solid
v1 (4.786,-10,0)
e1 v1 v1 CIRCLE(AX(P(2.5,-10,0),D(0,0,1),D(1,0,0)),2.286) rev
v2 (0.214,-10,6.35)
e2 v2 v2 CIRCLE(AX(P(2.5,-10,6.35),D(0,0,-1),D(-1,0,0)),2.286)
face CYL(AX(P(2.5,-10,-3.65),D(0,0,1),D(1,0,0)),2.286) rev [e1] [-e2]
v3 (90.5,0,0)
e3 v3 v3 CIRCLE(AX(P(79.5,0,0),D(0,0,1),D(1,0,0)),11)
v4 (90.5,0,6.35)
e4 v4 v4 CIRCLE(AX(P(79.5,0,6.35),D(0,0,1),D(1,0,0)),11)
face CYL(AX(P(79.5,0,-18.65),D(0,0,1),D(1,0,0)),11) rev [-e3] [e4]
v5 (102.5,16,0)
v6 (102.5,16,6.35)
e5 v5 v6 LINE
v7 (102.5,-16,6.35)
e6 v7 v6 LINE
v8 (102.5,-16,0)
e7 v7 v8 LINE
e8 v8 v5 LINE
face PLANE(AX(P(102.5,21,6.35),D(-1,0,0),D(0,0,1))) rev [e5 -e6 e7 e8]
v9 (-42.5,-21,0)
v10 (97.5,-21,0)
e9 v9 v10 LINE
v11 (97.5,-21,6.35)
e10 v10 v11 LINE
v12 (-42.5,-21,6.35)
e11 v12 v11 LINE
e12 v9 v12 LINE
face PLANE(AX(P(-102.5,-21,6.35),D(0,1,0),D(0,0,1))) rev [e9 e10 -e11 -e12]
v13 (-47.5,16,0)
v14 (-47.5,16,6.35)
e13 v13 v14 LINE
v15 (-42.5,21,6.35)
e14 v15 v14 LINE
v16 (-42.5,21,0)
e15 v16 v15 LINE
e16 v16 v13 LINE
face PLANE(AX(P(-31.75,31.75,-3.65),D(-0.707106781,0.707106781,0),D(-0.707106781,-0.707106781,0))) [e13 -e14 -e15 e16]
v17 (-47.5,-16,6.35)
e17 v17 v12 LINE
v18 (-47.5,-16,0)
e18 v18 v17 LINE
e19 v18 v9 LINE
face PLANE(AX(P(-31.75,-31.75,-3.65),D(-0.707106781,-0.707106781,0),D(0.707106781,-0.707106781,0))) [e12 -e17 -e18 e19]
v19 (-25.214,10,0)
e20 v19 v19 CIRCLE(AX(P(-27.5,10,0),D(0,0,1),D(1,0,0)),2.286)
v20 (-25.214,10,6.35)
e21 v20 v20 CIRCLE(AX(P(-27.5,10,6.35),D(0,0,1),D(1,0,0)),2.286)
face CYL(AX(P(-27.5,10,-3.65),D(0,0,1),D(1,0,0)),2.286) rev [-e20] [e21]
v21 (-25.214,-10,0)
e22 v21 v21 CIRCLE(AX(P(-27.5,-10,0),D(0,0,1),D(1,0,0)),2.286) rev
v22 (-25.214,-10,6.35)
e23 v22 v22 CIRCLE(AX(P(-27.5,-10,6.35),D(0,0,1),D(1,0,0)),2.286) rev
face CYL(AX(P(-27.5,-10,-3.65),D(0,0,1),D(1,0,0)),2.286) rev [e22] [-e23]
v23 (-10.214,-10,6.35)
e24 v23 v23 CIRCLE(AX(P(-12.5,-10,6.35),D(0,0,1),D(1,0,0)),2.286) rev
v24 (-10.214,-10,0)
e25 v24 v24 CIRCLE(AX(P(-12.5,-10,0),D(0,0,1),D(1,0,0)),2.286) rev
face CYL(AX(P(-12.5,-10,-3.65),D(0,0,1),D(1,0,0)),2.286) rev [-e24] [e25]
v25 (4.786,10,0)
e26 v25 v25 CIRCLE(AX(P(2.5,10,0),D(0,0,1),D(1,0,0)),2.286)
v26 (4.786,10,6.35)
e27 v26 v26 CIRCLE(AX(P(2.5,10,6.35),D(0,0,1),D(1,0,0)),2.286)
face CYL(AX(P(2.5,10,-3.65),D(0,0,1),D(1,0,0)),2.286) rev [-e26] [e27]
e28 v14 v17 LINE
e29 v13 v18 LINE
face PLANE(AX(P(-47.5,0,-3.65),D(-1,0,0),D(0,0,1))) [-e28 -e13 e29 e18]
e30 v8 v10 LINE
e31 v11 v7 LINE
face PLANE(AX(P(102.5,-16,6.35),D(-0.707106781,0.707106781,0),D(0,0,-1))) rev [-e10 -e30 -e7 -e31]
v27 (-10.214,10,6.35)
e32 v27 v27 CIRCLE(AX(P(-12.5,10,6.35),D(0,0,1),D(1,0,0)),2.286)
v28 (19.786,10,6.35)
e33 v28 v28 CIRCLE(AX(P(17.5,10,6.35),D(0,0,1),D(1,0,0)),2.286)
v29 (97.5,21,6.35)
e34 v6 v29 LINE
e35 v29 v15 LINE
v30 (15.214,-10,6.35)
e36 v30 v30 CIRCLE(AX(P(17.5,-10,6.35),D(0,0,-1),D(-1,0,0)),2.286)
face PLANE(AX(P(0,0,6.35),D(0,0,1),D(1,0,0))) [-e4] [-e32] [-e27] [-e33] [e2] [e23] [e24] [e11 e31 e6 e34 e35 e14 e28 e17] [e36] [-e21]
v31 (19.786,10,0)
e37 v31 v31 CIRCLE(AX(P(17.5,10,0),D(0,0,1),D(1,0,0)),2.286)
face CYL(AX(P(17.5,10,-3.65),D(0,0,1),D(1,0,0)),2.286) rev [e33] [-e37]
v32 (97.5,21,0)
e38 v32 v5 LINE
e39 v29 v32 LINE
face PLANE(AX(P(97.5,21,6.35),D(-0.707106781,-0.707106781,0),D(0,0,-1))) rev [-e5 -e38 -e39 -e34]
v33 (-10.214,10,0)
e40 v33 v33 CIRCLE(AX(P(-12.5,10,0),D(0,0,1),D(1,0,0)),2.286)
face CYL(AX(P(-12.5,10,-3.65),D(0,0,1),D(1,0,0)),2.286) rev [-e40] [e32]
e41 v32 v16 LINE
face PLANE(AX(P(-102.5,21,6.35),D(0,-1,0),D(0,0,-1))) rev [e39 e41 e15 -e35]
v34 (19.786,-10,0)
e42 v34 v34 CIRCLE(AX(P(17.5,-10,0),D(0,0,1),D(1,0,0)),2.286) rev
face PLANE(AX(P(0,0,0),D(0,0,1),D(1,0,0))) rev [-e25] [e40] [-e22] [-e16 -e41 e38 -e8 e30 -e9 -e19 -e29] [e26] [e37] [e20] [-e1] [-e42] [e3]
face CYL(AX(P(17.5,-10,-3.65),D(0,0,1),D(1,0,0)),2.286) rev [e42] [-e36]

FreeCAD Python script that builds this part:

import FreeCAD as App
import Part
import Sketcher
Q = App.Units.Quantity


def edges_at(feature, points):
    """Names of the edges that pass closest to the given points."""
    edges = feature.Shape.Edges
    near = lambda p: min(range(len(edges)), key=lambda i: edges[i].distToShape(Part.Vertex(*p))[0])
    return sorted({f"Edge{near(p) + 1}" for p in points})

doc = App.newDocument("Part")
body = doc.addObject("PartDesign::Body", "Body")

sketch1 = body.newObject("Sketcher::SketchObject", "Sketch")
sketch1.AttachmentSupport = (doc.getObject("XY_Plane"), [""])
sketch1.MapMode = "FlatFace"
sketch1.addGeometry([
    Part.LineSegment(App.Vector(-102, 21, 0), App.Vector(-102, -21, 0)),
    Part.LineSegment(App.Vector(-102, -21, 0), App.Vector(102, -21, 0)),
    Part.LineSegment(App.Vector(102, -21, 0), App.Vector(102, 21, 0)),
    Part.LineSegment(App.Vector(102, 21, 0), App.Vector(-102, 21, 0)),
], False)
sketch1.addConstraint([
    Sketcher.Constraint("Coincident", 0, 2, 1, 1),
    Sketcher.Constraint("Coincident", 1, 2, 2, 1),
    Sketcher.Constraint("Coincident", 2, 2, 3, 1),
    Sketcher.Constraint("Coincident", 3, 2, 0, 1),
    Sketcher.Constraint("Vertical", 0),
    Sketcher.Constraint("Horizontal", 1),
    Sketcher.Constraint("Vertical", 2),
    Sketcher.Constraint("Horizontal", 3),
    Sketcher.Constraint("Symmetric", 0, 2, 2, 2, -1, 1),
    Sketcher.Constraint("DistanceX", 1, 1, 1, 2, Q("205 mm")),
    Sketcher.Constraint("DistanceY", 0, 2, 0, 1, Q("42 mm")),
])
pad1 = body.newObject("PartDesign::Pad", "Pad")
pad1.Profile = sketch1
pad1.Length = 6.35

sketch2 = body.newObject("Sketcher::SketchObject", "Sketch001")
sketch2.AttachmentSupport = (doc.getObject("XY_Plane"), [""])
sketch2.MapMode = "FlatFace"
sketch2.AttachmentOffset = App.Placement(App.Vector(0, 0, 6.35), App.Rotation())
sketch2.addGeometry(Part.Circle(App.Vector(-78, 0, 0), App.Vector(0, 0, 1), 11), False)
sketch2.addConstraint([
    Sketcher.Constraint("PointOnObject", 0, 3, -1),
    Sketcher.Constraint("Diameter", 0, Q("22 mm")),
    Sketcher.Constraint("DistanceX", 0, 3, -1, 1, Q("78.5 mm")),
])
pocket1 = body.newObject("PartDesign::Pocket", "Pocket")
pocket1.Profile = sketch2
pocket1.Type = "ThroughAll"
doc.recompute()

chamfer = body.newObject("PartDesign::Chamfer", "Chamfer")
chamfer.Base = (pocket1, edges_at(pocket1, [
    (102.5, -21, 3.175),
    (-102.5, -21, 3.175),
    (-102.5, 21, 3.175),
    (102.5, 21, 3.175),
]))
chamfer.Size = 5

sketch3 = body.newObject("Sketcher::SketchObject", "Sketch002")
sketch3.AttachmentSupport = (doc.getObject("XY_Plane"), [""])
sketch3.MapMode = "FlatFace"
sketch3.AttachmentOffset = App.Placement(App.Vector(0, 0, 6.35), App.Rotation())
sketch3.addGeometry(Part.Circle(App.Vector(80, 0, 0), App.Vector(0, 0, 1), 11), False)
sketch3.addConstraint([
    Sketcher.Constraint("PointOnObject", 0, 3, -1),
    Sketcher.Constraint("Diameter", 0, Q("22 mm")),
    Sketcher.Constraint("DistanceX", -1, 1, 0, 3, Q("79.5 mm")),
])
pocket2 = body.newObject("PartDesign::Pocket", "Pocket001")
pocket2.Profile = sketch3
pocket2.Length = 25

sketch4 = body.newObject("Sketcher::SketchObject", "Sketch003")
sketch4.AttachmentSupport = (doc.getObject("XY_Plane"), [""])
sketch4.MapMode = "FlatFace"
sketch4.AttachmentOffset = App.Placement(App.Vector(0, 0, 6.35), App.Rotation())
sketch4.addGeometry([
    Part.LineSegment(App.Vector(-47.5, -16, 0), App.Vector(-47.5, 16, 0)),
    Part.LineSegment(App.Vector(-47.5, 16, 0), App.Vector(-42.5, 21, 0)),
    Part.LineSegment(App.Vector(-42.5, 21, 0), App.Vector(-97.5, 21, 0)),
    Part.LineSegment(App.Vector(-97.5, 21, 0), App.Vector(-102.5, 16, 0)),
    Part.LineSegment(App.Vector(-102.5, 16, 0), App.Vector(-102.5, -16, 0)),
    Part.LineSegment(App.Vector(-102.5, -16, 0), App.Vector(-97.5, -21, 0)),
    Part.LineSegment(App.Vector(-97.5, -21, 0), App.Vector(-42.5, -21, 0)),
    Part.LineSegment(App.Vector(-42.5, -21, 0), App.Vector(-47.5, -16, 0)),
    Part.Circle(App.Vector(-78.5, 0, 0), App.Vector(0, 0, 1), 11),
    Part.Circle(App.Vector(-27.5, 10, 0), App.Vector(0, 0, 1), 2.3),
    Part.Circle(App.Vector(-12.5, 10, 0), App.Vector(0, 0, 1), 2.3),
    Part.Circle(App.Vector(-12.5, -10, 0), App.Vector(0, 0, 1), 2.3),
    Part.Circle(App.Vector(-27.5, -10, 0), App.Vector(0, 0, 1), 2.3),
    Part.Circle(App.Vector(2.5, 10, 0), App.Vector(0, 0, 1), 2.3),
    Part.Circle(App.Vector(17.5, 10, 0), App.Vector(0, 0, 1), 2.3),
    Part.Circle(App.Vector(17.5, -10, 0), App.Vector(0, 0, 1), 2.3),
    Part.Circle(App.Vector(2.5, -10, 0), App.Vector(0, 0, 1), 2.3),
], False)
sketch4.addConstraint([
    Sketcher.Constraint("Coincident", 0, 2, 1, 1),
    Sketcher.Constraint("Coincident", 1, 2, 2, 1),
    Sketcher.Constraint("Coincident", 2, 2, 3, 1),
    Sketcher.Constraint("Coincident", 3, 2, 4, 1),
    Sketcher.Constraint("Coincident", 4, 2, 5, 1),
    Sketcher.Constraint("Coincident", 5, 2, 6, 1),
    Sketcher.Constraint("Coincident", 6, 2, 7, 1),
    Sketcher.Constraint("Coincident", 7, 2, 0, 1),
    Sketcher.Constraint("Vertical", 0),
    Sketcher.Constraint("Horizontal", 2),
    Sketcher.Constraint("Vertical", 4),
    Sketcher.Constraint("Horizontal", 6),
    Sketcher.Constraint("Equal", 9, 10),
    Sketcher.Constraint("Equal", 10, 11),
    Sketcher.Constraint("Equal", 11, 12),
    Sketcher.Constraint("Equal", 12, 13),
    Sketcher.Constraint("Equal", 13, 14),
    Sketcher.Constraint("Equal", 14, 15),
    Sketcher.Constraint("Equal", 15, 16),
    Sketcher.Constraint("Symmetric", 10, 3, 11, 3, -1),
    Sketcher.Constraint("Symmetric", 9, 3, 12, 3, -1),
    Sketcher.Constraint("Symmetric", 14, 3, 15, 3, -1),
    Sketcher.Constraint("Symmetric", 13, 3, 16, 3, -1),
    Sketcher.Constraint("Symmetric", 2, 2, 5, 2, -1),
    Sketcher.Constraint("PointOnObject", 8, 3, -1),
    Sketcher.Constraint("Parallel", 1, 3),
    Sketcher.Constraint("Perpendicular", 3, 5),
    Sketcher.Constraint("Parallel", 5, 7),
    Sketcher.Constraint("Horizontal", 9, 3, 10, 3),
    Sketcher.Constraint("Horizontal", 10, 3, 13, 3),
    Sketcher.Constraint("Horizontal", 13, 3, 14, 3),
    Sketcher.Constraint("Horizontal", 0, 2, 3, 2),
    Sketcher.Constraint("Horizontal", 4, 2, 7, 2),
    Sketcher.Constraint("Equal", 3, 5),
    Sketcher.Constraint("Diameter", 8, Q("22 mm")),
    Sketcher.Constraint("DistanceX", 2, 2, 2, 1, Q("55 mm")),
    Sketcher.Constraint("DistanceY", 0, 1, 0, 2, Q("32 mm")),
    Sketcher.Constraint("Diameter", 9, Q("4.572 mm")),
    Sketcher.Constraint("DistanceY", -1, 1, 9, 3, Q("10 mm")),
    Sketcher.Constraint("DistanceY", -1, 1, 1, 2, Q("21 mm")),
    Sketcher.Constraint("DistanceX", 8, 3, 9, 3, Q("51 mm")),
    Sketcher.Constraint("DistanceX", 9, 3, 10, 3, Q("15 mm")),
    Sketcher.Constraint("DistanceX", 10, 3, 13, 3, Q("15 mm")),
    Sketcher.Constraint("DistanceX", 13, 3, 14, 3, Q("15 mm")),
    Sketcher.Constraint("DistanceX", 0, 2, 9, 3, Q("20 mm")),
    Sketcher.Constraint("DistanceX", 8, 3, -1, 1, Q("78.5 mm")),
])
pocket3 = body.newObject("PartDesign::Pocket", "Pocket002")
pocket3.Profile = sketch4
pocket3.Length = 10

doc.recompute()
